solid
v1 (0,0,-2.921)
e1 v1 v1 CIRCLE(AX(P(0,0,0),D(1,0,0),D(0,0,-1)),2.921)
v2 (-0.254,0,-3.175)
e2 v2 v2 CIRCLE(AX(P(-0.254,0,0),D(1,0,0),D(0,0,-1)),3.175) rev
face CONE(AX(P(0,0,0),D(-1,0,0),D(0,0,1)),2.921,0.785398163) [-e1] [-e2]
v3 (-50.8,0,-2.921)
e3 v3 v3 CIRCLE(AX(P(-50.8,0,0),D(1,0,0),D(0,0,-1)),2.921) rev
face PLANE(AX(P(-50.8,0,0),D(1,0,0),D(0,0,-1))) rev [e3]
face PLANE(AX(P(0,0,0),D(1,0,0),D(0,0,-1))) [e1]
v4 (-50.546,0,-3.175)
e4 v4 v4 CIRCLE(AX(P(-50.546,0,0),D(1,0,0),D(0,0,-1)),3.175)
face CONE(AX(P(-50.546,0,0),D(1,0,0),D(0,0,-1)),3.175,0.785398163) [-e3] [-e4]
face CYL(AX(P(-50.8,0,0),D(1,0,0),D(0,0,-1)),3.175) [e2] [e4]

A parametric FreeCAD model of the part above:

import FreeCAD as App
import Part
import Sketcher

V = App.Vector
Q = App.Units.Quantity


def edges_at(feature, points):
    """Names of the edges that pass closest to the given points."""
    edges = feature.Shape.Edges
    near = lambda p: min(range(len(edges)), key=lambda i: edges[i].distToShape(Part.Vertex(*p))[0])
    return sorted({f"Edge{near(p) + 1}" for p in points})

doc = App.newDocument("Part")
params = doc.addObject("Spreadsheet::Sheet", "Params")
for row, (alias, value) in enumerate([
    ("sketch1_diameter", "0.25 in"),
    ("pad1_length", "2 in"),
    ("chamfer_size", "0.01 in"),
], start=1):
    params.set(f"A{row}", alias)
    params.set(f"B{row}", "=" + value)
    params.setAlias(f"B{row}", alias)

body = doc.addObject("PartDesign::Body", "Body")

# Sketch on YZ plane
sketch1 = body.newObject("Sketcher::SketchObject", "Sketch")
sketch1.AttachmentSupport = (doc.getObject("YZ_Plane"), [""])
sketch1.MapMode = "FlatFace"
sketch1.addGeometry(Part.Circle(V(0, 0, 0), V(0, 0, 1), 3.2), False)
sketch1.addConstraint([
    Sketcher.Constraint("Coincident", 0, 3, -1, 1),
    Sketcher.Constraint("Diameter", 0, Q("0.25 in")),
])
sketch1.setExpression("Constraints[1]", "Params.sketch1_diameter")
pad1 = body.newObject("PartDesign::Pad", "Pad")
pad1.Profile = sketch1
pad1.setExpression("Length", "Params.pad1_length")
pad1.Reversed = True
doc.recompute()

chamfer = body.newObject("PartDesign::Chamfer", "Chamfer")
chamfer.Base = (pad1, edges_at(pad1, [(0, 0, 3.175), (-50.8, 0, 3.175)]))
chamfer.setExpression("Size", "Params.chamfer_size")

doc.recompute()
